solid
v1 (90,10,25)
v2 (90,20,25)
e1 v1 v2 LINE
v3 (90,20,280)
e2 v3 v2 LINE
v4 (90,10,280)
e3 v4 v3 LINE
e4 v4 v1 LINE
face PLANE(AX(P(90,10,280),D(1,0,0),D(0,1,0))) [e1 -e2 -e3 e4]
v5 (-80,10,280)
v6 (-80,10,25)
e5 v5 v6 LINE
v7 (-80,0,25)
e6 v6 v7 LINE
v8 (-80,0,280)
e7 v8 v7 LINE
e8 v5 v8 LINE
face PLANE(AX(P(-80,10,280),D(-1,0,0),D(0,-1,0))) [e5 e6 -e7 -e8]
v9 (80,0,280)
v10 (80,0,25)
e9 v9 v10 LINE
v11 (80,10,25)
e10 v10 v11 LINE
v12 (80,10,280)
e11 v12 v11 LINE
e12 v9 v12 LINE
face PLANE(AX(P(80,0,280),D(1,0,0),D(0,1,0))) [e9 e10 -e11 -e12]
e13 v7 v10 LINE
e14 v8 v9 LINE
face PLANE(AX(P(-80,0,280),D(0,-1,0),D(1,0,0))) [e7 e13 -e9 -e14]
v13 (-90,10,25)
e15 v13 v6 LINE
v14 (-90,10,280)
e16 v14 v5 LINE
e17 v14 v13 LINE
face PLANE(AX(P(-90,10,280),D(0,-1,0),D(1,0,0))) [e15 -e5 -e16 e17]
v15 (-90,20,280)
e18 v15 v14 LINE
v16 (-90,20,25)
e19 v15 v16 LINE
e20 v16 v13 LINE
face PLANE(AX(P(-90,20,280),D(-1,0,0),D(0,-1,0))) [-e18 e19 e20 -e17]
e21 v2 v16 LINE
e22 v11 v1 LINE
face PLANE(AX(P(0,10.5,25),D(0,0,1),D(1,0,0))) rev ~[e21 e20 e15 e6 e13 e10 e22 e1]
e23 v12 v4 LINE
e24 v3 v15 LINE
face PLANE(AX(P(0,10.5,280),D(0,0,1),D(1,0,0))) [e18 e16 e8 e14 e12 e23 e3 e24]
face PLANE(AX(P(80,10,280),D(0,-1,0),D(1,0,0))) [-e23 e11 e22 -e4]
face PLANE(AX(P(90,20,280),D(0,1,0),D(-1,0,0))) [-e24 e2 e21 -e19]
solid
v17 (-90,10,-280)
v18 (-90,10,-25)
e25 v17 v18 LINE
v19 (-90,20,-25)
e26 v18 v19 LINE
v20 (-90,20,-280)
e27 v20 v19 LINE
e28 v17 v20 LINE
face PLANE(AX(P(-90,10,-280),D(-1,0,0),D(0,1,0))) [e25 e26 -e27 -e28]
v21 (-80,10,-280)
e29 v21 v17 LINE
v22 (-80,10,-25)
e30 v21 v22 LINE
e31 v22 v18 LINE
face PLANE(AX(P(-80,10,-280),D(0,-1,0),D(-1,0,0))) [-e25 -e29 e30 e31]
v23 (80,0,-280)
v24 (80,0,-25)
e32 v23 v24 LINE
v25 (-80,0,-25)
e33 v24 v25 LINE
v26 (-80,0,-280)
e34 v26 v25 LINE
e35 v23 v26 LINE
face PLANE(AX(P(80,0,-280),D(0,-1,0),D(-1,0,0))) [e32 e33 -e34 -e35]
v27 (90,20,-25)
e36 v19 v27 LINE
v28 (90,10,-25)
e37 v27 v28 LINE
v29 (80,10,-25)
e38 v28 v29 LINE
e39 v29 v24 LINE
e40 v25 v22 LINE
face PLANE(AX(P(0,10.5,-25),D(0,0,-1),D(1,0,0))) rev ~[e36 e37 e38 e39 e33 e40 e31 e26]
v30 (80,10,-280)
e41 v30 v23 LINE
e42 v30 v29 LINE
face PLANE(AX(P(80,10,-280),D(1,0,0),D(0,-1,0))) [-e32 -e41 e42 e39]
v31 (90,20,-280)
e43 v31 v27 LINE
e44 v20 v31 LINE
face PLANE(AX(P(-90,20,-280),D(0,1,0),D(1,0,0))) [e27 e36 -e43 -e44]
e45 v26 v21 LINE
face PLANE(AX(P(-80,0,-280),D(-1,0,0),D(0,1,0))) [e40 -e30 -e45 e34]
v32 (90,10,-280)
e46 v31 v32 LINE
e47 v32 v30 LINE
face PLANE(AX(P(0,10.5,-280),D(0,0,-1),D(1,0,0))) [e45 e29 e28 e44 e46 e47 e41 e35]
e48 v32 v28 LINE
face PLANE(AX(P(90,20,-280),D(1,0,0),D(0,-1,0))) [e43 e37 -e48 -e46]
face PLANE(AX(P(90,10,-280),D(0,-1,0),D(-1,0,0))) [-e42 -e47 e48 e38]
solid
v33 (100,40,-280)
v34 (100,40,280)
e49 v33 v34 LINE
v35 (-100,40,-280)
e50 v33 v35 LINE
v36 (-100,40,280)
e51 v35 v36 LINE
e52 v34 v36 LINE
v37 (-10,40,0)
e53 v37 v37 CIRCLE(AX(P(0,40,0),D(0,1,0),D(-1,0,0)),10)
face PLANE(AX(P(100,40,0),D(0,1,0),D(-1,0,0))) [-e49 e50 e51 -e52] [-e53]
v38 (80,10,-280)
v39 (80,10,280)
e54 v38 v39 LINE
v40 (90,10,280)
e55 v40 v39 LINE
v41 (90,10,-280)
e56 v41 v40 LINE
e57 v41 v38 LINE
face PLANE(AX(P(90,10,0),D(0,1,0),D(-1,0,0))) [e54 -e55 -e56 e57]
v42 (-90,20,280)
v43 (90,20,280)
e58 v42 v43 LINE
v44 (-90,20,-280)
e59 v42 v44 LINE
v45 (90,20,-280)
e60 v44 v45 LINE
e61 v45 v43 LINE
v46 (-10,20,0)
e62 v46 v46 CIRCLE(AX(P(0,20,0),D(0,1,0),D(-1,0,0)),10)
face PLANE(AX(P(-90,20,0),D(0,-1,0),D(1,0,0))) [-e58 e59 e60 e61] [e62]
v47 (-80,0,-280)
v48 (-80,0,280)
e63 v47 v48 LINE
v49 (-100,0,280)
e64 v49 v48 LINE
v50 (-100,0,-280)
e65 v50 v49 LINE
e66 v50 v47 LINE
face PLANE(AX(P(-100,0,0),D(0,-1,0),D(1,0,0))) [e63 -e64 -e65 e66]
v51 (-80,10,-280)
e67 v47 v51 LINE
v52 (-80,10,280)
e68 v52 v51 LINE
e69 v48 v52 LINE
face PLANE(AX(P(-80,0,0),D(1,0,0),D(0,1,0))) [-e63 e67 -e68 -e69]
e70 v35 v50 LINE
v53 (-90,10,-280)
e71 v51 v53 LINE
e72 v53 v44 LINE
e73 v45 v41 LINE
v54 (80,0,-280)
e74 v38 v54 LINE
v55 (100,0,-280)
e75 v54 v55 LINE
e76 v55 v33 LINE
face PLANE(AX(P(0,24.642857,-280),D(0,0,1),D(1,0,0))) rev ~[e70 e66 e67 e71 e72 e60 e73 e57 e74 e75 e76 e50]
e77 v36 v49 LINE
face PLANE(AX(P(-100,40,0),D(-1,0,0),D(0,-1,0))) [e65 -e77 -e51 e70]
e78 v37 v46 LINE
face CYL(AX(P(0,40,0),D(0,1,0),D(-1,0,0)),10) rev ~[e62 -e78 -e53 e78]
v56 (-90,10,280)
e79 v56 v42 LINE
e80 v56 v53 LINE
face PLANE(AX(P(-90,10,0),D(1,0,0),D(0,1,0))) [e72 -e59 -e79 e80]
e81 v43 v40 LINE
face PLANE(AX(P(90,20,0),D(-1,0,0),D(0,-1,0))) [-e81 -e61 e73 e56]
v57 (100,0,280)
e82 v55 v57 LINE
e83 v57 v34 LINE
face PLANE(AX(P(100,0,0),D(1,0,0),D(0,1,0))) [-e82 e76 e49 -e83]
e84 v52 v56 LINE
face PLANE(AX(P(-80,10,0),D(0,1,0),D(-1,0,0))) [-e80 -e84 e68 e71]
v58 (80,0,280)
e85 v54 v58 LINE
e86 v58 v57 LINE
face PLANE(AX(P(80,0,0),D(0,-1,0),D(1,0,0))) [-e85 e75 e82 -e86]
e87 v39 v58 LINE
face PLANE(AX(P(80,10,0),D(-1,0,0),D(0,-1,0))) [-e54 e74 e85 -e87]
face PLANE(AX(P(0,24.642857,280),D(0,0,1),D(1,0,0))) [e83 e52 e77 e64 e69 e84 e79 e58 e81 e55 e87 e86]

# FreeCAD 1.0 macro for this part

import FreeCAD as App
import Part
import Sketcher
from FreeCAD import Vector


def add_polygon(sketch, points):
    """Adds a closed chain of lines whose ends are joined by coincident constraints."""
    first, n = sketch.GeometryCount, len(points)
    for a, b in zip(points, points[1:] + points[:1]):
        sketch.addGeometry(Part.LineSegment(App.Vector(*a, 0), App.Vector(*b, 0)), False)
    for i in range(n):
        sketch.addConstraint(Sketcher.Constraint("Coincident", first + i, 2, first + (i + 1) % n, 1))

doc = App.newDocument("Part")
body = doc.addObject("PartDesign::Body", "Body")

# Sketch on XY plane
sketch1 = body.newObject("Sketcher::SketchObject", "Sketch")
sketch1.AttachmentSupport = (doc.getObject("XY_Plane"), [""])
sketch1.MapMode = "FlatFace"
add_polygon(sketch1, [(-90, 20), (90, 20), (90, 10), (80, 10), (80, 0), (100, 0), (100, 40), (-100, 40), (-100, 0), (-80, 0), (-80, 10), (-90, 10)])  # lines 0-11
sketch1.addConstraint(Sketcher.Constraint("Horizontal", 0))
sketch1.addConstraint(Sketcher.Constraint("Vertical", 1))
sketch1.addConstraint(Sketcher.Constraint("Horizontal", 2))
sketch1.addConstraint(Sketcher.Constraint("Vertical", 3))
sketch1.addConstraint(Sketcher.Constraint("Horizontal", 4))
sketch1.addConstraint(Sketcher.Constraint("Vertical", 5))
sketch1.addConstraint(Sketcher.Constraint("Horizontal", 6))
sketch1.addConstraint(Sketcher.Constraint("Vertical", 7))
sketch1.addConstraint(Sketcher.Constraint("Horizontal", 8))
sketch1.addConstraint(Sketcher.Constraint("Vertical", 9))
sketch1.addConstraint(Sketcher.Constraint("Horizontal", 10))
sketch1.addConstraint(Sketcher.Constraint("Vertical", 11))
sketch1.addConstraint(Sketcher.Constraint("Symmetric", 4, 2, 7, 2, -1, 1))
sketch1.addConstraint(Sketcher.Constraint("Symmetric", 3, 2, 8, 2, -2))
sketch1.addConstraint(Sketcher.Constraint("Symmetric", 1, 2, 10, 2, -2))
sketch1.addConstraint(Sketcher.Constraint("Equal", 10, 1))
sketch1.addConstraint(Sketcher.Constraint("Equal", 1, 3))
sketch1.addConstraint(Sketcher.Constraint("DistanceX", 0, 1, 0, 2, 180.0))
sketch1.addConstraint(Sketcher.Constraint("DistanceX", 2, 2, 2, 1, 10.0))
sketch1.addConstraint(Sketcher.Constraint("DistanceX", 4, 1, 4, 2, 20.0))
sketch1.addConstraint(Sketcher.Constraint("DistanceY", 5, 1, 5, 2, 40.0))
pad1 = body.newObject("PartDesign::Pad", "Pad")
pad1.Profile = sketch1
pad1.Type = "TwoLengths"
pad1.Length = 280
pad1.Length2 = 280

# Sketch on XZ plane
sketch2 = body.newObject("Sketcher::SketchObject", "Sketch001")
sketch2.AttachmentSupport = (doc.getObject("XZ_Plane"), [""])
sketch2.MapMode = "FlatFace"
sketch2.AttachmentOffset = App.Placement(Vector(0, 0, -40), App.Rotation())
sketch2.addGeometry(Part.Circle(Vector(0, 0, 0), Vector(0, 0, 1), 10), False)
sketch2.addConstraint(Sketcher.Constraint("Coincident", 0, 3, -1, 1))
sketch2.addConstraint(Sketcher.Constraint("Diameter", 0, 20.0))
pocket1 = body.newObject("PartDesign::Pocket", "Pocket")
pocket1.Profile = sketch2
pocket1.Length = 20
pocket1.Reversed = True
body2 = doc.addObject("PartDesign::Body", "Body001")

# Sketch on XY plane
sketch3 = body2.newObject("Sketcher::SketchObject", "Sketch002")
sketch3.AttachmentSupport = (doc.getObject("XY_Plane001"), [""])
sketch3.MapMode = "FlatFace"
sketch3.AttachmentOffset = App.Placement(Vector(0, 0, 280), App.Rotation())
add_polygon(sketch3, [(90, 20), (-90, 20), (-90, 10), (-80, 10), (-80, 0), (80, 0), (80, 10), (90, 10)])  # lines 0-7
sketch3.addConstraint(Sketcher.Constraint("Horizontal", 0))
sketch3.addConstraint(Sketcher.Constraint("Vertical", 1))
sketch3.addConstraint(Sketcher.Constraint("Horizontal", 2))
sketch3.addConstraint(Sketcher.Constraint("Vertical", 3))
sketch3.addConstraint(Sketcher.Constraint("Horizontal", 4))
sketch3.addConstraint(Sketcher.Constraint("Vertical", 5))
sketch3.addConstraint(Sketcher.Constraint("Horizontal", 6))
sketch3.addConstraint(Sketcher.Constraint("Vertical", 7))
sketch3.addConstraint(Sketcher.Constraint("Symmetric", 3, 2, 4, 2, -1, 1))
sketch3.addConstraint(Sketcher.Constraint("Symmetric", 1, 2, 6, 2, -2))
sketch3.addConstraint(Sketcher.Constraint("Equal", 6, 1))
sketch3.addConstraint(Sketcher.Constraint("Equal", 1, 3))
sketch3.addConstraint(Sketcher.Constraint("DistanceX", 0, 2, 0, 1, 180.0))
sketch3.addConstraint(Sketcher.Constraint("DistanceX", 2, 1, 2, 2, 10.0))
pad2 = body2.newObject("PartDesign::Pad", "Pad001")
pad2.Profile = sketch3
pad2.Length = 255
pad2.Reversed = True
body3 = doc.addObject("PartDesign::Body", "Body002")

# Sketch on XY plane
sketch4 = body3.newObject("Sketcher::SketchObject", "Sketch003")
sketch4.AttachmentSupport = (doc.getObject("XY_Plane002"), [""])
sketch4.MapMode = "FlatFace"
sketch4.AttachmentOffset = App.Placement(Vector(0, 0, -280), App.Rotation())
add_polygon(sketch4, [(80, 0), (-80, 0), (-80, 10), (-90, 10), (-90, 20), (90, 20), (90, 10), (80, 10)])  # lines 0-7
sketch4.addConstraint(Sketcher.Constraint("Horizontal", 0))
sketch4.addConstraint(Sketcher.Constraint("Vertical", 1))
sketch4.addConstraint(Sketcher.Constraint("Horizontal", 2))
sketch4.addConstraint(Sketcher.Constraint("Vertical", 3))
sketch4.addConstraint(Sketcher.Constraint("Horizontal", 4))
sketch4.addConstraint(Sketcher.Constraint("Vertical", 5))
sketch4.addConstraint(Sketcher.Constraint("Horizontal", 6))
sketch4.addConstraint(Sketcher.Constraint("Vertical", 7))
sketch4.addConstraint(Sketcher.Constraint("Symmetric", 0, 2, 7, 2, -1, 1))
sketch4.addConstraint(Sketcher.Constraint("Symmetric", 2, 2, 5, 2, -2))
sketch4.addConstraint(Sketcher.Constraint("Equal", 6, 1))
sketch4.addConstraint(Sketcher.Constraint("Equal", 1, 3))
sketch4.addConstraint(Sketcher.Constraint("DistanceX", 0, 2, 0, 1, 160.0))
sketch4.addConstraint(Sketcher.Constraint("DistanceX", 2, 2, 2, 1, 10.0))
pad3 = body3.newObject("PartDesign::Pad", "Pad002")
pad3.Profile = sketch4
pad3.Length = 255

doc.recompute()
